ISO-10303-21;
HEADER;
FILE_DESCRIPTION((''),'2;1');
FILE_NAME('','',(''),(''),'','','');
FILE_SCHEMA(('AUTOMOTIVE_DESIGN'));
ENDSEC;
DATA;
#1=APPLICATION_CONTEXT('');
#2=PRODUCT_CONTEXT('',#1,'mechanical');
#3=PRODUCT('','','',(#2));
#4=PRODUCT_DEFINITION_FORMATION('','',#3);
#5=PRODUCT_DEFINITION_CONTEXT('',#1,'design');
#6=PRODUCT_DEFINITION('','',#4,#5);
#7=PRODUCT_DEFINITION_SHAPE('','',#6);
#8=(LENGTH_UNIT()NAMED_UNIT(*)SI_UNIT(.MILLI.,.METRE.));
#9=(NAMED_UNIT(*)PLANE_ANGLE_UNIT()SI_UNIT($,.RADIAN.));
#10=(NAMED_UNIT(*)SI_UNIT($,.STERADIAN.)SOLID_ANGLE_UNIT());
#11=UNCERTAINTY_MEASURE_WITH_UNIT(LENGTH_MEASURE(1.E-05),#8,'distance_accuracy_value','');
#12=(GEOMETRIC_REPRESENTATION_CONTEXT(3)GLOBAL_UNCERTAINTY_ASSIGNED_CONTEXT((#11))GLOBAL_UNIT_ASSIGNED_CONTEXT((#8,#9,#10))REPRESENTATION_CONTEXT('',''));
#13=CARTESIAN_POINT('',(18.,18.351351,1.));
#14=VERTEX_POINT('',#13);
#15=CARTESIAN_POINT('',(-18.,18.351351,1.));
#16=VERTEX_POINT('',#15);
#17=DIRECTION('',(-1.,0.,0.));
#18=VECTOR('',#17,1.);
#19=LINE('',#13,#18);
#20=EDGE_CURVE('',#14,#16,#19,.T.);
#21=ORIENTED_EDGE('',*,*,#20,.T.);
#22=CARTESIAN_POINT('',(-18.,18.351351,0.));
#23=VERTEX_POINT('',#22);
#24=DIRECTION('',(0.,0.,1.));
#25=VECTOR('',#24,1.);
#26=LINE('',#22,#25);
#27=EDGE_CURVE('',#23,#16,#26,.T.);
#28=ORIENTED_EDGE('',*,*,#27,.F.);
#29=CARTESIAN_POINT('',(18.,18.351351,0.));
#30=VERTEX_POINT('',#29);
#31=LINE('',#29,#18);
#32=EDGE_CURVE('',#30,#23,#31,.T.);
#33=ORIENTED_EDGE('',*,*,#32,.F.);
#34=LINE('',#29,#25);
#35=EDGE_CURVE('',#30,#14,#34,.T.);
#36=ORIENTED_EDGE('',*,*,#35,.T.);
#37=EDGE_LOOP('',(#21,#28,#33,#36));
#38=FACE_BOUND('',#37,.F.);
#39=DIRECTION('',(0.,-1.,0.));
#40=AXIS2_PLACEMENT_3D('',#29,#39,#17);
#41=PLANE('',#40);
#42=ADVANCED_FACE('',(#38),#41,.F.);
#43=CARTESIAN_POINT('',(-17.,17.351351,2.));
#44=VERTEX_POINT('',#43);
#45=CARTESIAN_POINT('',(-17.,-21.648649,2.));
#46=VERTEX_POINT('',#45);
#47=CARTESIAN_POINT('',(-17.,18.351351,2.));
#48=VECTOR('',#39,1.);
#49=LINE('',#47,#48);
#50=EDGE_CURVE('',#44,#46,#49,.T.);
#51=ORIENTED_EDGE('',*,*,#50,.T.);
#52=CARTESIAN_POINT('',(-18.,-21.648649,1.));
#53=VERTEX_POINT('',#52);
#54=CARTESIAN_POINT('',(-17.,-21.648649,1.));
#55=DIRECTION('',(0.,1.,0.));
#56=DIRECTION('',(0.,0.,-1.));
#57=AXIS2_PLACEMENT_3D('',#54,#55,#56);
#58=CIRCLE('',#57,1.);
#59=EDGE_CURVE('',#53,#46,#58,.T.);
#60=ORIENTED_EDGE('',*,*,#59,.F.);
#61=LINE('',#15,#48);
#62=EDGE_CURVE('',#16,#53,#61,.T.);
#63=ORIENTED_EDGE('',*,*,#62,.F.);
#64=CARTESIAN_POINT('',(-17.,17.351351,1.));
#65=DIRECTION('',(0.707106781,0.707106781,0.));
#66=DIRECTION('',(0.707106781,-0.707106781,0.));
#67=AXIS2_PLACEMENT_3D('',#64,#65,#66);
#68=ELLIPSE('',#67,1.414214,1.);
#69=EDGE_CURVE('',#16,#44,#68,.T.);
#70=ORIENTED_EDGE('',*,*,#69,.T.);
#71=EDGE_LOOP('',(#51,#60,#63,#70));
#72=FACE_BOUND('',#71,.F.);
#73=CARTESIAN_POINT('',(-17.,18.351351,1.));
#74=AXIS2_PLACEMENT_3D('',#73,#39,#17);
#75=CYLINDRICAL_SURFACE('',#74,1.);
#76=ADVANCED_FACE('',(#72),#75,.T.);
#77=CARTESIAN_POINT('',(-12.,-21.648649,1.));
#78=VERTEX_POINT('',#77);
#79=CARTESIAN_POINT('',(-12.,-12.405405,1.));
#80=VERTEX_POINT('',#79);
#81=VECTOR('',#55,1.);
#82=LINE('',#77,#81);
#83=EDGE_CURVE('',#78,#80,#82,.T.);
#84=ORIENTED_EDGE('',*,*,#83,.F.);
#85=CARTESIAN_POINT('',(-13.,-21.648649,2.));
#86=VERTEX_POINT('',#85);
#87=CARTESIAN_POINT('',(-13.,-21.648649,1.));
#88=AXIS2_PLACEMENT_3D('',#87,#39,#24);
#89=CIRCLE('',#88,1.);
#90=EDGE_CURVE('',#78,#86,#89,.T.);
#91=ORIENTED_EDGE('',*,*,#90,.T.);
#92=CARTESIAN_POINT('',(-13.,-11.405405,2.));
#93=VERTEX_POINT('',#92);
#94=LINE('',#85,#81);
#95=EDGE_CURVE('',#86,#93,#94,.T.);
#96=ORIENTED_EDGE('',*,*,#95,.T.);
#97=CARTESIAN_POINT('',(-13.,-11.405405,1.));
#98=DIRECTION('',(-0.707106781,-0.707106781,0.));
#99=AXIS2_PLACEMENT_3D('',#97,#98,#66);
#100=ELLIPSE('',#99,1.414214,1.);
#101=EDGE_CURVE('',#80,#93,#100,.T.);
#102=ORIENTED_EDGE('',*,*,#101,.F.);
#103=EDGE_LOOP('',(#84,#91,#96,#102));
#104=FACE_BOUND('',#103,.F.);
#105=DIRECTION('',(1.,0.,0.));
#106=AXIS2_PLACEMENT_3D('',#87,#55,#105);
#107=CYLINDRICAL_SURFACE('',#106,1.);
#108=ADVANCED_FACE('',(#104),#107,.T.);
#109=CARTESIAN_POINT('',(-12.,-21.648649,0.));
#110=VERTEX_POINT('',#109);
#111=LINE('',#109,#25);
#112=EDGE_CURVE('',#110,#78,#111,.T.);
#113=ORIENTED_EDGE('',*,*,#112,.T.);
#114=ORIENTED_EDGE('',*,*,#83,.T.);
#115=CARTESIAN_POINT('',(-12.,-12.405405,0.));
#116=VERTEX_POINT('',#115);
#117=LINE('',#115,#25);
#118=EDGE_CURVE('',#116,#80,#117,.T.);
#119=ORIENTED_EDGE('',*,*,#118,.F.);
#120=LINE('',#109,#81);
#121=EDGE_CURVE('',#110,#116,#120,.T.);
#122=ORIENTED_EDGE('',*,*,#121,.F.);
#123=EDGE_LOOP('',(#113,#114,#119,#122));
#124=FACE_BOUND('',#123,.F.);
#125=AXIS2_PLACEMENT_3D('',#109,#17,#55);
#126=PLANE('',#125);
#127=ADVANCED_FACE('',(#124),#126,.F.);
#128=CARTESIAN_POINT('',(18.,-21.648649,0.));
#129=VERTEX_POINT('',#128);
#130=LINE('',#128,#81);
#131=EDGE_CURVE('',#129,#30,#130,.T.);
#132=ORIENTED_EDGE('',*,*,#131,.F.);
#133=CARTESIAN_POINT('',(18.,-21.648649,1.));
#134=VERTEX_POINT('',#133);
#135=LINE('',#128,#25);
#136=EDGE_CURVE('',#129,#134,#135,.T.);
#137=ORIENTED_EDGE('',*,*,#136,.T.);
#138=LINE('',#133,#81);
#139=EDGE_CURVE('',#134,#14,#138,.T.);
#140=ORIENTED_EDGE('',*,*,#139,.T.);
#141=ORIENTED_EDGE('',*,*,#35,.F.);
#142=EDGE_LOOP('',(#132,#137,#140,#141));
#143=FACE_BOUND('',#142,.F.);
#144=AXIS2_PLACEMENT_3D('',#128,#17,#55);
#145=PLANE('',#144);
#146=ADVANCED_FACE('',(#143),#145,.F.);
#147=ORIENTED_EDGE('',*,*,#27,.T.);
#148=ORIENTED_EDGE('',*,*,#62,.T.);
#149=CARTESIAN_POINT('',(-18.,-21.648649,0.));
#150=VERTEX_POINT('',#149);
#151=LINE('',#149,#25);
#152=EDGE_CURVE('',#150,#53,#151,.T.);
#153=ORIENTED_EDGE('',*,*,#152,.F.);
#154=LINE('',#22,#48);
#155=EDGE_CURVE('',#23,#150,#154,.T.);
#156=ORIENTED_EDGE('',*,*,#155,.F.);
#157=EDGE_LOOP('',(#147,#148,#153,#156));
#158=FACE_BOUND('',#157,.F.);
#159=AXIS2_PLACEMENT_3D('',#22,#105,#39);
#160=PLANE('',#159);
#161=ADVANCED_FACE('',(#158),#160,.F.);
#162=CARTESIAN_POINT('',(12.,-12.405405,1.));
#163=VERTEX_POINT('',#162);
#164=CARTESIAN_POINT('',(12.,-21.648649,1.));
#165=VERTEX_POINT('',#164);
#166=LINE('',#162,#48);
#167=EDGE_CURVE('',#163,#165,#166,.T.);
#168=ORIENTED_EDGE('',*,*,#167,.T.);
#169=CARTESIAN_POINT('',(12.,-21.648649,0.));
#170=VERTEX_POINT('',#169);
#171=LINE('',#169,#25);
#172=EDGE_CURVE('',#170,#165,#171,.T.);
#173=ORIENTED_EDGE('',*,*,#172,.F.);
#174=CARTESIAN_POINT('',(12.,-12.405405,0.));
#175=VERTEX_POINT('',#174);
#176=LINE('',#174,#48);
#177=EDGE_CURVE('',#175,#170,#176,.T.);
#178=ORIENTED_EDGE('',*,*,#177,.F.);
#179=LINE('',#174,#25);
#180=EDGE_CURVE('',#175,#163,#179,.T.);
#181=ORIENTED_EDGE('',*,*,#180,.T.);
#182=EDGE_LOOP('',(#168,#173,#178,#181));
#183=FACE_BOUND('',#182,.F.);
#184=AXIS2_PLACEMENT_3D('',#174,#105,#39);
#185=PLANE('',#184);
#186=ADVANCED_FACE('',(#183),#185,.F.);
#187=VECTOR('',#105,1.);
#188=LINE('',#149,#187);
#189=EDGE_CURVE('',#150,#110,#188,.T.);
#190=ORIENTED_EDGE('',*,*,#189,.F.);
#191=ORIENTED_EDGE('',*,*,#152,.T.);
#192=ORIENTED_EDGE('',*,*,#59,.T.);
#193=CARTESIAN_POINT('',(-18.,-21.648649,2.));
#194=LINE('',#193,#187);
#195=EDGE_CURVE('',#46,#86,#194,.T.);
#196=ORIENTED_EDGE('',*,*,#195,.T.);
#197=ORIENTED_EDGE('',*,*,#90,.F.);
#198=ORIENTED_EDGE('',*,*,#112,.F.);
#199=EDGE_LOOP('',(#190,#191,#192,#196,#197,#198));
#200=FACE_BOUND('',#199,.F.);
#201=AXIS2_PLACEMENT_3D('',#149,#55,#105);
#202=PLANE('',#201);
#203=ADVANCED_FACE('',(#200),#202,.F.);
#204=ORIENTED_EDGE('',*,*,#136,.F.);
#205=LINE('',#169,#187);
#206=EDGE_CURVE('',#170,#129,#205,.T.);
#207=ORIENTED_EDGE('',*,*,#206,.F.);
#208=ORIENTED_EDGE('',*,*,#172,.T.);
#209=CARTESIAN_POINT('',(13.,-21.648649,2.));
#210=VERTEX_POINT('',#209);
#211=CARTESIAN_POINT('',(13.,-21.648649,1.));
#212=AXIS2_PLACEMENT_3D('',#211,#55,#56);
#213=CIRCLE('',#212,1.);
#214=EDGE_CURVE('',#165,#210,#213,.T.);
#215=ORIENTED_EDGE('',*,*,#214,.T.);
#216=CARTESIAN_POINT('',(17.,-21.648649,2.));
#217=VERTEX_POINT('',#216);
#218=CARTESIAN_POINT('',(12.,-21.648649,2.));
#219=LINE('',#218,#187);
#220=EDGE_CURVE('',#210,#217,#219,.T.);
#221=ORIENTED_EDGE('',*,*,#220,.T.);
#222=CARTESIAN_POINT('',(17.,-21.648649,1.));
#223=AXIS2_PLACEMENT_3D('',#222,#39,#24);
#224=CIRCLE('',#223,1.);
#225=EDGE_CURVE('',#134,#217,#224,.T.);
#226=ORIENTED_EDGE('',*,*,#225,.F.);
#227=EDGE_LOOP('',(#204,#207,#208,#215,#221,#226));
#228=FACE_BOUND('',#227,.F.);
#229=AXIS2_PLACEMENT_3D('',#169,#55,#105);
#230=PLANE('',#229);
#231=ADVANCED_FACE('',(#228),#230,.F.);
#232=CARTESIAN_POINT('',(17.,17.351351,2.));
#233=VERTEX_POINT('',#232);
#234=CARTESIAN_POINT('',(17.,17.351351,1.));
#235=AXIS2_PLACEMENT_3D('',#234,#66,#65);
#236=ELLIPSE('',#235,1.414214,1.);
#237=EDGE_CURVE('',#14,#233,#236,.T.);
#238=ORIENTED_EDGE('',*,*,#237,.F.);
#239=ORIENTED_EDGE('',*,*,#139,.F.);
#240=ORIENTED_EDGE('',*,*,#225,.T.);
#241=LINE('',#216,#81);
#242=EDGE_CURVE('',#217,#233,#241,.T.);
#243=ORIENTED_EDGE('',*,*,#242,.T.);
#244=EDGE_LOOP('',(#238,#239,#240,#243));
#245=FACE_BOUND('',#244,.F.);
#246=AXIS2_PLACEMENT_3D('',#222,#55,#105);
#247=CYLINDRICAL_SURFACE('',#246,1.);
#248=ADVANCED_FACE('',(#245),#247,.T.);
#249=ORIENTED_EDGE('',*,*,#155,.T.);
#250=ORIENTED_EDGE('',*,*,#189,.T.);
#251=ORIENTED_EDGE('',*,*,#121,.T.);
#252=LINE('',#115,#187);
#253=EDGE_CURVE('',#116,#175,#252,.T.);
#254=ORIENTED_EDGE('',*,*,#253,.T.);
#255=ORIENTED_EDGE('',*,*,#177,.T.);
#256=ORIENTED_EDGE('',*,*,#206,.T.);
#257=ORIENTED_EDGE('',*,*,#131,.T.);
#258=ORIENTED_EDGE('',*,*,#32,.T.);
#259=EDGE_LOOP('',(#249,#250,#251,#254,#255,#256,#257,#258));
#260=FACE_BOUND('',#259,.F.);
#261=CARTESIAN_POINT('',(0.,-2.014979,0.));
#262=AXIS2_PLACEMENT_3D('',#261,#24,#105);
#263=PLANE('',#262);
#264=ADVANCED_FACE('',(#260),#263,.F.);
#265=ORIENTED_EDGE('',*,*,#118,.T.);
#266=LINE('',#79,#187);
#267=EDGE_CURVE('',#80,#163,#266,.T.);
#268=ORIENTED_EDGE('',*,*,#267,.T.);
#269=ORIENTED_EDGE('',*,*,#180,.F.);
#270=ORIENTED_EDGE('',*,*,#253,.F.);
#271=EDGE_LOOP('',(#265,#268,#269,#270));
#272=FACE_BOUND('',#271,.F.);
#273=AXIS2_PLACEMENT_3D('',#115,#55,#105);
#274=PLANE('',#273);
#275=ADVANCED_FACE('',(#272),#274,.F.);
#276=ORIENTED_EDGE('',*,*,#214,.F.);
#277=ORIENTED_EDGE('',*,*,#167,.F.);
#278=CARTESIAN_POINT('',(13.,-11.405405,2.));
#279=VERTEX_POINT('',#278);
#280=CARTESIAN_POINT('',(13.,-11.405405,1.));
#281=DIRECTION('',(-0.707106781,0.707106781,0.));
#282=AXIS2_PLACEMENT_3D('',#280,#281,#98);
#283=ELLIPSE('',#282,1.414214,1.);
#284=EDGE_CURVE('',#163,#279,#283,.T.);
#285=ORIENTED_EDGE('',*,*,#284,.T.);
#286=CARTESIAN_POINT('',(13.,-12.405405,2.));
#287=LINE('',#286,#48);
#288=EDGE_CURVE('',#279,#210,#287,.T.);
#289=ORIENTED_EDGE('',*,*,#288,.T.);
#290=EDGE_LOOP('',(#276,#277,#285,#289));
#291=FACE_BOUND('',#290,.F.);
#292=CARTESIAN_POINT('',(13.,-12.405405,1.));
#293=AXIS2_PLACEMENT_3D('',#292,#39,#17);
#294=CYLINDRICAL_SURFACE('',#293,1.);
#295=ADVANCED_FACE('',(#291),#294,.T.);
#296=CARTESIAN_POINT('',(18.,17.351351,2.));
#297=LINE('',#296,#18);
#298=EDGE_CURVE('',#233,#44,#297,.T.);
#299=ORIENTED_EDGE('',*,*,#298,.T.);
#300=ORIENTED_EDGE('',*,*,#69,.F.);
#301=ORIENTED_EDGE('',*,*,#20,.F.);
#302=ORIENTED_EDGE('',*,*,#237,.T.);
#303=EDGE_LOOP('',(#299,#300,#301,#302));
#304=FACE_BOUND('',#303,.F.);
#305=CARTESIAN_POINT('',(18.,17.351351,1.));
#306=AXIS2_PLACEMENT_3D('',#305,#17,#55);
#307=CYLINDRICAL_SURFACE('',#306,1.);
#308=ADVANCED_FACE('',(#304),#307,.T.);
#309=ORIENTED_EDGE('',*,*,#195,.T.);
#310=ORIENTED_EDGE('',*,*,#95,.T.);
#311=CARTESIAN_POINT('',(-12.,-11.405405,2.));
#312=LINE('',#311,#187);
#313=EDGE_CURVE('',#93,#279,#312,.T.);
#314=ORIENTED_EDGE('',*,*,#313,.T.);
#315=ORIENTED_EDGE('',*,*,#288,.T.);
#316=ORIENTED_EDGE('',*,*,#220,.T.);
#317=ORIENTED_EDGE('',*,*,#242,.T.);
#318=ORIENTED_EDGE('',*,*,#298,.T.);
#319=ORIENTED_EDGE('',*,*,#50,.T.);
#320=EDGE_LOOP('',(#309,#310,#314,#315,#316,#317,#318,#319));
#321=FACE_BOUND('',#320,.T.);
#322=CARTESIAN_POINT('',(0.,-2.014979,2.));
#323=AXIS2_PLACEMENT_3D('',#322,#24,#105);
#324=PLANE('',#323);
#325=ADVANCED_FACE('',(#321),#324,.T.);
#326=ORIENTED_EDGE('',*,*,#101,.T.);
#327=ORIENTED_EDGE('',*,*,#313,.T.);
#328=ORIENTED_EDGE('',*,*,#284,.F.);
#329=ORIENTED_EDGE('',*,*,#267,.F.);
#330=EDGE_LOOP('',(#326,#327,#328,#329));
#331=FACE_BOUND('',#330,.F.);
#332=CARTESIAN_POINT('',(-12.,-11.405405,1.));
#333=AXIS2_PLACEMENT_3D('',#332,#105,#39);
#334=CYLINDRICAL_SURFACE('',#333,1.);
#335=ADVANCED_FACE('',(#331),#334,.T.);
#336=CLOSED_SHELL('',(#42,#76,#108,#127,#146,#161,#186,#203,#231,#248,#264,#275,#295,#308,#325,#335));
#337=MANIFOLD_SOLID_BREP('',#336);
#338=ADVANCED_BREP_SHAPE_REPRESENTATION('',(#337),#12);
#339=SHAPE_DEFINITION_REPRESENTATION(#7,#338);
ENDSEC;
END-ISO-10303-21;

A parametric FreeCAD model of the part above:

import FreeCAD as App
import Part
import Sketcher
from FreeCAD import Vector
Q = App.Units.Quantity


def edges_at(feature, points):
    """Names of the edges that pass closest to the given points."""
    edges = feature.Shape.Edges
    near = lambda p: min(range(len(edges)), key=lambda i: edges[i].distToShape(Part.Vertex(*p))[0])
    return sorted({f"Edge{near(p) + 1}" for p in points})


def add_polygon(sketch, points):
    """Adds a closed chain of lines whose ends are joined by coincident constraints."""
    first, n = sketch.GeometryCount, len(points)
    for a, b in zip(points, points[1:] + points[:1]):
        sketch.addGeometry(Part.LineSegment(App.Vector(*a, 0), App.Vector(*b, 0)), False)
    for i in range(n):
        sketch.addConstraint(Sketcher.Constraint("Coincident", first + i, 2, first + (i + 1) % n, 1))

doc = App.newDocument("Part")
body = doc.addObject("PartDesign::Body", "Body")

# Sketch on XY plane
sketch1 = body.newObject("Sketcher::SketchObject", "Sketch")
sketch1.AttachmentSupport = (doc.getObject("XY_Plane"), [""])
sketch1.MapMode = "FlatFace"
add_polygon(sketch1, [(18, 18), (-18, 18), (-18, -22), (-12, -22), (-12, -12), (12, -12), (12, -22), (18, -22)])  # lines 0-7
sketch1.addConstraint(Sketcher.Constraint("Horizontal", 0))
sketch1.addConstraint(Sketcher.Constraint("Vertical", 1))
sketch1.addConstraint(Sketcher.Constraint("Horizontal", 2))
sketch1.addConstraint(Sketcher.Constraint("Vertical", 3))
sketch1.addConstraint(Sketcher.Constraint("Horizontal", 4))
sketch1.addConstraint(Sketcher.Constraint("Vertical", 5))
sketch1.addConstraint(Sketcher.Constraint("Horizontal", 6))
sketch1.addConstraint(Sketcher.Constraint("Vertical", 7))
sketch1.addConstraint(Sketcher.Constraint("Symmetric", 2, 2, 5, 2, -2))
sketch1.addConstraint(Sketcher.Constraint("Equal", 2, 6))
sketch1.addConstraint(Sketcher.Constraint("DistanceX", 0, 2, 0, 1, Q("36 mm")))
sketch1.addConstraint(Sketcher.Constraint("DistanceX", 2, 1, 2, 2, Q("6 mm")))
sketch1.addConstraint(Sketcher.Constraint("DistanceY", 1, 2, 1, 1, Q("40 mm")))
sketch1.addConstraint(Sketcher.Constraint("DistanceY", 3, 1, 3, 2, Q("9.243244 mm")))
sketch1.addConstraint(Sketcher.Constraint("DistanceY", -1, 1, 0, 2, Q("18.351351 mm")))
pad1 = body.newObject("PartDesign::Pad", "Pad")
pad1.Profile = sketch1
pad1.Length = 2
doc.recompute()

fillet = body.newObject("PartDesign::Fillet", "Fillet")
fillet.Base = (pad1, edges_at(pad1, [
    (-18, -1.649, 2),
    (18, -1.649, 2),
    (12, -17.027, 2),
    (0, -12.405, 2),
    (-12, -17.027, 2),
    (0, 18.351, 2),
]))
fillet.Radius = 1

doc.recompute()
